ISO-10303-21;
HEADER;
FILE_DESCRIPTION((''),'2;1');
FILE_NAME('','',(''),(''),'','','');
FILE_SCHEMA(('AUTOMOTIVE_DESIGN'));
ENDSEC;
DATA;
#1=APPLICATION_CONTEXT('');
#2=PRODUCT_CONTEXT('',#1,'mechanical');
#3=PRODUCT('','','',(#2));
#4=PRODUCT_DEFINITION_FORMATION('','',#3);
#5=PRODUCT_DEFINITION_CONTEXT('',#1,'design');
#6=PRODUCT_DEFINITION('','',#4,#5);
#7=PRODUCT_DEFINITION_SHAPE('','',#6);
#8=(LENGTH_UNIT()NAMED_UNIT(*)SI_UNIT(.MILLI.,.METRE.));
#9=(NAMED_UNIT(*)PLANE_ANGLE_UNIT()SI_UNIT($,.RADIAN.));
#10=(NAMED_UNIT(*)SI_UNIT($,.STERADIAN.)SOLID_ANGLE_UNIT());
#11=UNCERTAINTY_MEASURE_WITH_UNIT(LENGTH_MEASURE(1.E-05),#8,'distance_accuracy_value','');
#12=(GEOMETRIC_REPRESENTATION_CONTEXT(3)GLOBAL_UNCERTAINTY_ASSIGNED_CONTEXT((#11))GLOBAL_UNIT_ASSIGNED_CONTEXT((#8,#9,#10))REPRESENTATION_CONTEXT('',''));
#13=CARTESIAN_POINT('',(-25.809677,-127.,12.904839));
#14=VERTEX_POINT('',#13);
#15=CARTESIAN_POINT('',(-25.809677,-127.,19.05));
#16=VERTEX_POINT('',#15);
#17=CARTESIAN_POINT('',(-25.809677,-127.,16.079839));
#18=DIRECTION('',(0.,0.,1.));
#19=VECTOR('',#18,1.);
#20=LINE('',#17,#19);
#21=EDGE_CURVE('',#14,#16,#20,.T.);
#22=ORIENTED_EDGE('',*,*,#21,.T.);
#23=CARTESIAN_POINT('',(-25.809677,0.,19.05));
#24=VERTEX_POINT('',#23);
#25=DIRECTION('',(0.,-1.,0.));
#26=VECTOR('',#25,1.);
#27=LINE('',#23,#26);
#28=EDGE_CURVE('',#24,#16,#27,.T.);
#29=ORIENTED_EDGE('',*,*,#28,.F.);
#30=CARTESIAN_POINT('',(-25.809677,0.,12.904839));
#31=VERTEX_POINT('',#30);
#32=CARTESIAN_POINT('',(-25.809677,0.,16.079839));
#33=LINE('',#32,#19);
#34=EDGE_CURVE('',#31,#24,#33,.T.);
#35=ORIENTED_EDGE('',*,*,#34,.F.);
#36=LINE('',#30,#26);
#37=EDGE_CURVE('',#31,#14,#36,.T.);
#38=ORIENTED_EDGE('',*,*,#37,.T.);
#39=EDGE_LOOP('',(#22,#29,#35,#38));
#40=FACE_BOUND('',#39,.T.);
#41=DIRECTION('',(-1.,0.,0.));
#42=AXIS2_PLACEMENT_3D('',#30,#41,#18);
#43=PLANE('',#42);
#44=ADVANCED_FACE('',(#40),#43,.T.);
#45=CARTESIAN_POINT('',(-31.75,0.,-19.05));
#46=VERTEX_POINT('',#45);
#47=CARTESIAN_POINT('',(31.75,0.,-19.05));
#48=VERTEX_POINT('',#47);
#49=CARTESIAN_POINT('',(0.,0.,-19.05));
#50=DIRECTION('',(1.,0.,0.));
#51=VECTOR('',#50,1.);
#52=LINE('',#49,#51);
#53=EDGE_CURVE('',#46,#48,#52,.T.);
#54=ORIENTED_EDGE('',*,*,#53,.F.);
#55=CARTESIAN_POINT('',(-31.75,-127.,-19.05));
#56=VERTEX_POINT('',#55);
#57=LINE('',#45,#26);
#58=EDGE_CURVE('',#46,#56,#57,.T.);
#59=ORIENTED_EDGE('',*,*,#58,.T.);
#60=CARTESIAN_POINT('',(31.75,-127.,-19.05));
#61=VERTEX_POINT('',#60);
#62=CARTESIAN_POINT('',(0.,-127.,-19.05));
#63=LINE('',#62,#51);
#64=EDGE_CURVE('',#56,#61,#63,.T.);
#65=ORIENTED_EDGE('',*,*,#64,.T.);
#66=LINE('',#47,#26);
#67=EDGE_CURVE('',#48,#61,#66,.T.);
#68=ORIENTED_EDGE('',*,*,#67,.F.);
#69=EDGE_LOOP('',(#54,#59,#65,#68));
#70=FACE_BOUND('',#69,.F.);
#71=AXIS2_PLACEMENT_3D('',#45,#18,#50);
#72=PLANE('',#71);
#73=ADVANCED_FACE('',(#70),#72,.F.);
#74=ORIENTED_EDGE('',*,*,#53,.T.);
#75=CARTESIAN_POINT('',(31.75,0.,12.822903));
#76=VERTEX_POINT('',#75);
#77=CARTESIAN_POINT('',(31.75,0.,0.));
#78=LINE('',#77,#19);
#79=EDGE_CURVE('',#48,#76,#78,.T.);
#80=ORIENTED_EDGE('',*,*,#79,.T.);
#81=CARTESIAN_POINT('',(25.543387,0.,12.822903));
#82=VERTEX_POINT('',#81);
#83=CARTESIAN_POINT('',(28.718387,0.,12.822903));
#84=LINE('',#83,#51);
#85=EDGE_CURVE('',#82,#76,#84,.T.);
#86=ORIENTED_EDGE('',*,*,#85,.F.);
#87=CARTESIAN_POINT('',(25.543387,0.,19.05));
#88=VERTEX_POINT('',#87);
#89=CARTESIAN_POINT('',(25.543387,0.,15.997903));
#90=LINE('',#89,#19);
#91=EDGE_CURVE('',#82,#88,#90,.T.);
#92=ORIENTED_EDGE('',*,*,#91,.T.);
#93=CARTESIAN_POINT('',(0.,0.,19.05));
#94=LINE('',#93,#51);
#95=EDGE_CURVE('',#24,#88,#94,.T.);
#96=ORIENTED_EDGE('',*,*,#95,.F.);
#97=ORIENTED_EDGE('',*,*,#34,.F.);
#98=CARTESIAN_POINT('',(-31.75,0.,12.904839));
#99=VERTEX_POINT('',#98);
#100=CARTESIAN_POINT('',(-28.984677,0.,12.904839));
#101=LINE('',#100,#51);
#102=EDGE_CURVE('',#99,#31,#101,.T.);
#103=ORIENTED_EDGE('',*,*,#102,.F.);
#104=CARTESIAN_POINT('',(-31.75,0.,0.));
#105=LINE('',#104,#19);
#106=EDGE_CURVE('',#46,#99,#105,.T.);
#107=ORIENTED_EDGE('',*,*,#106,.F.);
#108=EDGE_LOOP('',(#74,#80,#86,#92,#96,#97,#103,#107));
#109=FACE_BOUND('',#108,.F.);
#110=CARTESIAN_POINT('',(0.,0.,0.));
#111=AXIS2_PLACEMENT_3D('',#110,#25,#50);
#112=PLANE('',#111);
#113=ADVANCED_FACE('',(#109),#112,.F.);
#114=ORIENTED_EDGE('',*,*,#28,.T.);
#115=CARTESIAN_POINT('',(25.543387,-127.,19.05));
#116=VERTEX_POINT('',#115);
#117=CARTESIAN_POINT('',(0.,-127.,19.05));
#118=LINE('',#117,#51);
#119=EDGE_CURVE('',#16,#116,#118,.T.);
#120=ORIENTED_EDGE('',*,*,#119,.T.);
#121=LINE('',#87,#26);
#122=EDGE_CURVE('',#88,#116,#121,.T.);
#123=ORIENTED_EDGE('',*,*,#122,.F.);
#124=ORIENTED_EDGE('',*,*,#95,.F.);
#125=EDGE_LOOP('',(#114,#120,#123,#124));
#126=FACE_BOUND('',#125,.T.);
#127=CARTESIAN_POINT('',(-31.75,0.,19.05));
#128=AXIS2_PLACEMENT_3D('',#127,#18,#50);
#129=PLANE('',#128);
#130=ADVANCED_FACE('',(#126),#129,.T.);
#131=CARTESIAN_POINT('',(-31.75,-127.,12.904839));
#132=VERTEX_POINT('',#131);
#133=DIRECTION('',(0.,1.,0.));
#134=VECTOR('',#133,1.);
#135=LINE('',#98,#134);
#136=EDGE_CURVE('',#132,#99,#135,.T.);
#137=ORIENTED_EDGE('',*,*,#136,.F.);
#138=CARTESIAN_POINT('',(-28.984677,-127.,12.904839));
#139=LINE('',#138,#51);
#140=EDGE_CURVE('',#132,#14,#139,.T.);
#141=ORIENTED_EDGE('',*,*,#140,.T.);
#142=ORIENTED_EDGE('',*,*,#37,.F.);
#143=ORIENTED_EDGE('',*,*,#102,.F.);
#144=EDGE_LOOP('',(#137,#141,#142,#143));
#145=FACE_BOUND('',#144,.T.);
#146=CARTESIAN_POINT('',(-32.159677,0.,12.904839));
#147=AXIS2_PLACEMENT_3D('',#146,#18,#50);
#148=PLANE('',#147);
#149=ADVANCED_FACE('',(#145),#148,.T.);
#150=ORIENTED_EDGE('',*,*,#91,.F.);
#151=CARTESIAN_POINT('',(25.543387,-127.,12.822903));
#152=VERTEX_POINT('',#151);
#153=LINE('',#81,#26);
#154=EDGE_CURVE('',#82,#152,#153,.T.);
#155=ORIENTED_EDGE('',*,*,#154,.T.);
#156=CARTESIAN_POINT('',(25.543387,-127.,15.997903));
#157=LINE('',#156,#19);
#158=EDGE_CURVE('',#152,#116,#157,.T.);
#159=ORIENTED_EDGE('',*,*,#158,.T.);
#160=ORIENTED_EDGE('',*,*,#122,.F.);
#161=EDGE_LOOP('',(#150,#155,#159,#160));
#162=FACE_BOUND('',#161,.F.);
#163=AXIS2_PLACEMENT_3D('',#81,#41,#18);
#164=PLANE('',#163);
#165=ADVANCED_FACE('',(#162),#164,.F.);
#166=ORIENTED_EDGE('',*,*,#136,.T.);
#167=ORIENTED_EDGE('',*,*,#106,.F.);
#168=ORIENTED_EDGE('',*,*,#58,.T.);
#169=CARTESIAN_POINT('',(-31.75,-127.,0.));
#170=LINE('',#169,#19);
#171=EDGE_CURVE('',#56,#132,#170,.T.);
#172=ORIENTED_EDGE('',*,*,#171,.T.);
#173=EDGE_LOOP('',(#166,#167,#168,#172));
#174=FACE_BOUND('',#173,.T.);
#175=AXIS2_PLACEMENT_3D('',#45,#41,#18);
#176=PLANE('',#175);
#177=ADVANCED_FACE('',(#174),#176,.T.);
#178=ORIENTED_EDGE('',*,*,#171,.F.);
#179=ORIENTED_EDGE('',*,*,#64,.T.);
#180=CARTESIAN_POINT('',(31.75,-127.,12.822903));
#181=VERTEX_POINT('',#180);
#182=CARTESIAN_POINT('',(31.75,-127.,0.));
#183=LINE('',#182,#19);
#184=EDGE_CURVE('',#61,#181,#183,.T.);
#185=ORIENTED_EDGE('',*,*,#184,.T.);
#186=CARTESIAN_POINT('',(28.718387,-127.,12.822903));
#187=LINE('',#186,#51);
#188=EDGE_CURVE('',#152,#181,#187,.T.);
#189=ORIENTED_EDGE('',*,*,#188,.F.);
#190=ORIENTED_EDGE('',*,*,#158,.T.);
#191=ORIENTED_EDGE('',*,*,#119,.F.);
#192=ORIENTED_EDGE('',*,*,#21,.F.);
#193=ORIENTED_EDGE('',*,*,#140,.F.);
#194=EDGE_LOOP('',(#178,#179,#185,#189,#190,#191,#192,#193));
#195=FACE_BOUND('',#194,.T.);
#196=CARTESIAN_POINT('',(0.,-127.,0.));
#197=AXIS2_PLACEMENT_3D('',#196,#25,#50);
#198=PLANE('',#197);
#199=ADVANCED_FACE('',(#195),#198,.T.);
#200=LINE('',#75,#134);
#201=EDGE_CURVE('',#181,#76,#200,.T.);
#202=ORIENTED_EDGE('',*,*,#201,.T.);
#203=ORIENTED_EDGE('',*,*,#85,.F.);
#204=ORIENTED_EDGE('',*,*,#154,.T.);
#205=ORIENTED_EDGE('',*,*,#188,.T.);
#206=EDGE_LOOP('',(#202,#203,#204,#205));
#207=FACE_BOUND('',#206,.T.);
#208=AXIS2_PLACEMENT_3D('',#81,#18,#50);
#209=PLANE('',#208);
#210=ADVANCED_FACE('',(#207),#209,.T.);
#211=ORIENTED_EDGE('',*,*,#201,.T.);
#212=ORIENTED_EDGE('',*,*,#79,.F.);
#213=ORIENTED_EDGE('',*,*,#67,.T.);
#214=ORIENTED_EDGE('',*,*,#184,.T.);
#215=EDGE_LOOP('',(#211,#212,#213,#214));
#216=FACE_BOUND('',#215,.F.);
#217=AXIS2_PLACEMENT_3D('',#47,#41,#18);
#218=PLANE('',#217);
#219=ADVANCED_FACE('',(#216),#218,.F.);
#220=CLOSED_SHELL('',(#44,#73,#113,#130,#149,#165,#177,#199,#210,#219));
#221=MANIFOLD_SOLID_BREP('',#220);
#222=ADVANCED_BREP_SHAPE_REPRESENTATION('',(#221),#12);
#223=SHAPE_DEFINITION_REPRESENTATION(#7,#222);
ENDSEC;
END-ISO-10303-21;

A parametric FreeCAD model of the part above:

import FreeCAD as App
import Part
import Sketcher

V = App.Vector
Q = App.Units.Quantity

doc = App.newDocument("Part")
body = doc.addObject("PartDesign::Body", "Body")

sketch1 = body.newObject("Sketcher::SketchObject", "Sketch")
sketch1.AttachmentSupport = (doc.getObject("XZ_Plane"), [""])
sketch1.MapMode = "FlatFace"
sketch1.addGeometry([
    Part.LineSegment(V(-32, 19, 0), V(-32, -19, 0)),
    Part.LineSegment(V(-32, -19, 0), V(32, -19, 0)),
    Part.LineSegment(V(32, -19, 0), V(32, 19, 0)),
    Part.LineSegment(V(32, 19, 0), V(-32, 19, 0)),
], False)
sketch1.addConstraint([
    Sketcher.Constraint("Coincident", 0, 2, 1, 1),
    Sketcher.Constraint("Coincident", 1, 2, 2, 1),
    Sketcher.Constraint("Coincident", 2, 2, 3, 1),
    Sketcher.Constraint("Coincident", 3, 2, 0, 1),
    Sketcher.Constraint("Vertical", 0),
    Sketcher.Constraint("Horizontal", 1),
    Sketcher.Constraint("Vertical", 2),
    Sketcher.Constraint("Horizontal", 3),
    Sketcher.Constraint("Symmetric", 0, 2, 2, 2, -1, 1),
    Sketcher.Constraint("DistanceX", 1, 1, 1, 2, Q("2.5 in")),
    Sketcher.Constraint("DistanceY", 0, 2, 0, 1, Q("1.5 in")),
])
pad1 = body.newObject("PartDesign::Pad", "Pad")
pad1.Profile = sketch1
pad1.Length = Q("5 in")

sketch2 = body.newObject("Sketcher::SketchObject", "Sketch001")
sketch2.AttachmentSupport = (doc.getObject("XZ_Plane"), [""])
sketch2.MapMode = "FlatFace"
sketch2.addGeometry([
    Part.LineSegment(V(-32, 19, 0), V(-32, 13, 0)),
    Part.LineSegment(V(-32, 13, 0), V(-26, 13, 0)),
    Part.LineSegment(V(-26, 13, 0), V(-26, 19, 0)),
    Part.LineSegment(V(-26, 19, 0), V(-32, 19, 0)),
], False)
sketch2.addConstraint([
    Sketcher.Constraint("Coincident", 0, 2, 1, 1),
    Sketcher.Constraint("Coincident", 1, 2, 2, 1),
    Sketcher.Constraint("Coincident", 2, 2, 3, 1),
    Sketcher.Constraint("Coincident", 3, 2, 0, 1),
    Sketcher.Constraint("Vertical", 0),
    Sketcher.Constraint("Horizontal", 1),
    Sketcher.Constraint("Vertical", 2),
    Sketcher.Constraint("Horizontal", 3),
    Sketcher.Constraint("Equal", 3, 0),
    Sketcher.Constraint("DistanceX", 1, 1, 1, 2, Q("0.25 in")),
    Sketcher.Constraint("DistanceY", -1, 1, 0, 2, 12.904839),
    Sketcher.Constraint("DistanceX", 0, 2, -1, 1, 32.159677),
])
pocket1 = body.newObject("PartDesign::Pocket", "Pocket")
pocket1.Profile = sketch2
pocket1.Length = Q("5 in")
pocket1.Reversed = True

sketch3 = body.newObject("Sketcher::SketchObject", "Sketch002")
sketch3.AttachmentSupport = (doc.getObject("XZ_Plane"), [""])
sketch3.MapMode = "FlatFace"
sketch3.addGeometry([
    Part.LineSegment(V(26, 19, 0), V(26, 13, 0)),
    Part.LineSegment(V(26, 13, 0), V(32, 13, 0)),
    Part.LineSegment(V(32, 13, 0), V(32, 19, 0)),
    Part.LineSegment(V(32, 19, 0), V(26, 19, 0)),
], False)
sketch3.addConstraint([
    Sketcher.Constraint("Coincident", 0, 2, 1, 1),
    Sketcher.Constraint("Coincident", 1, 2, 2, 1),
    Sketcher.Constraint("Coincident", 2, 2, 3, 1),
    Sketcher.Constraint("Coincident", 3, 2, 0, 1),
    Sketcher.Constraint("Vertical", 0),
    Sketcher.Constraint("Horizontal", 1),
    Sketcher.Constraint("Vertical", 2),
    Sketcher.Constraint("Horizontal", 3),
    Sketcher.Constraint("Equal", 3, 0),
    Sketcher.Constraint("DistanceX", 1, 1, 1, 2, Q("0.25 in")),
    Sketcher.Constraint("DistanceX", -1, 1, 0, 2, 25.543387),
    Sketcher.Constraint("DistanceY", -1, 1, 0, 2, 12.822903),
])
pocket2 = body.newObject("PartDesign::Pocket", "Pocket001")
pocket2.Profile = sketch3
pocket2.Length = Q("5 in")
pocket2.Reversed = True

doc.recompute()
